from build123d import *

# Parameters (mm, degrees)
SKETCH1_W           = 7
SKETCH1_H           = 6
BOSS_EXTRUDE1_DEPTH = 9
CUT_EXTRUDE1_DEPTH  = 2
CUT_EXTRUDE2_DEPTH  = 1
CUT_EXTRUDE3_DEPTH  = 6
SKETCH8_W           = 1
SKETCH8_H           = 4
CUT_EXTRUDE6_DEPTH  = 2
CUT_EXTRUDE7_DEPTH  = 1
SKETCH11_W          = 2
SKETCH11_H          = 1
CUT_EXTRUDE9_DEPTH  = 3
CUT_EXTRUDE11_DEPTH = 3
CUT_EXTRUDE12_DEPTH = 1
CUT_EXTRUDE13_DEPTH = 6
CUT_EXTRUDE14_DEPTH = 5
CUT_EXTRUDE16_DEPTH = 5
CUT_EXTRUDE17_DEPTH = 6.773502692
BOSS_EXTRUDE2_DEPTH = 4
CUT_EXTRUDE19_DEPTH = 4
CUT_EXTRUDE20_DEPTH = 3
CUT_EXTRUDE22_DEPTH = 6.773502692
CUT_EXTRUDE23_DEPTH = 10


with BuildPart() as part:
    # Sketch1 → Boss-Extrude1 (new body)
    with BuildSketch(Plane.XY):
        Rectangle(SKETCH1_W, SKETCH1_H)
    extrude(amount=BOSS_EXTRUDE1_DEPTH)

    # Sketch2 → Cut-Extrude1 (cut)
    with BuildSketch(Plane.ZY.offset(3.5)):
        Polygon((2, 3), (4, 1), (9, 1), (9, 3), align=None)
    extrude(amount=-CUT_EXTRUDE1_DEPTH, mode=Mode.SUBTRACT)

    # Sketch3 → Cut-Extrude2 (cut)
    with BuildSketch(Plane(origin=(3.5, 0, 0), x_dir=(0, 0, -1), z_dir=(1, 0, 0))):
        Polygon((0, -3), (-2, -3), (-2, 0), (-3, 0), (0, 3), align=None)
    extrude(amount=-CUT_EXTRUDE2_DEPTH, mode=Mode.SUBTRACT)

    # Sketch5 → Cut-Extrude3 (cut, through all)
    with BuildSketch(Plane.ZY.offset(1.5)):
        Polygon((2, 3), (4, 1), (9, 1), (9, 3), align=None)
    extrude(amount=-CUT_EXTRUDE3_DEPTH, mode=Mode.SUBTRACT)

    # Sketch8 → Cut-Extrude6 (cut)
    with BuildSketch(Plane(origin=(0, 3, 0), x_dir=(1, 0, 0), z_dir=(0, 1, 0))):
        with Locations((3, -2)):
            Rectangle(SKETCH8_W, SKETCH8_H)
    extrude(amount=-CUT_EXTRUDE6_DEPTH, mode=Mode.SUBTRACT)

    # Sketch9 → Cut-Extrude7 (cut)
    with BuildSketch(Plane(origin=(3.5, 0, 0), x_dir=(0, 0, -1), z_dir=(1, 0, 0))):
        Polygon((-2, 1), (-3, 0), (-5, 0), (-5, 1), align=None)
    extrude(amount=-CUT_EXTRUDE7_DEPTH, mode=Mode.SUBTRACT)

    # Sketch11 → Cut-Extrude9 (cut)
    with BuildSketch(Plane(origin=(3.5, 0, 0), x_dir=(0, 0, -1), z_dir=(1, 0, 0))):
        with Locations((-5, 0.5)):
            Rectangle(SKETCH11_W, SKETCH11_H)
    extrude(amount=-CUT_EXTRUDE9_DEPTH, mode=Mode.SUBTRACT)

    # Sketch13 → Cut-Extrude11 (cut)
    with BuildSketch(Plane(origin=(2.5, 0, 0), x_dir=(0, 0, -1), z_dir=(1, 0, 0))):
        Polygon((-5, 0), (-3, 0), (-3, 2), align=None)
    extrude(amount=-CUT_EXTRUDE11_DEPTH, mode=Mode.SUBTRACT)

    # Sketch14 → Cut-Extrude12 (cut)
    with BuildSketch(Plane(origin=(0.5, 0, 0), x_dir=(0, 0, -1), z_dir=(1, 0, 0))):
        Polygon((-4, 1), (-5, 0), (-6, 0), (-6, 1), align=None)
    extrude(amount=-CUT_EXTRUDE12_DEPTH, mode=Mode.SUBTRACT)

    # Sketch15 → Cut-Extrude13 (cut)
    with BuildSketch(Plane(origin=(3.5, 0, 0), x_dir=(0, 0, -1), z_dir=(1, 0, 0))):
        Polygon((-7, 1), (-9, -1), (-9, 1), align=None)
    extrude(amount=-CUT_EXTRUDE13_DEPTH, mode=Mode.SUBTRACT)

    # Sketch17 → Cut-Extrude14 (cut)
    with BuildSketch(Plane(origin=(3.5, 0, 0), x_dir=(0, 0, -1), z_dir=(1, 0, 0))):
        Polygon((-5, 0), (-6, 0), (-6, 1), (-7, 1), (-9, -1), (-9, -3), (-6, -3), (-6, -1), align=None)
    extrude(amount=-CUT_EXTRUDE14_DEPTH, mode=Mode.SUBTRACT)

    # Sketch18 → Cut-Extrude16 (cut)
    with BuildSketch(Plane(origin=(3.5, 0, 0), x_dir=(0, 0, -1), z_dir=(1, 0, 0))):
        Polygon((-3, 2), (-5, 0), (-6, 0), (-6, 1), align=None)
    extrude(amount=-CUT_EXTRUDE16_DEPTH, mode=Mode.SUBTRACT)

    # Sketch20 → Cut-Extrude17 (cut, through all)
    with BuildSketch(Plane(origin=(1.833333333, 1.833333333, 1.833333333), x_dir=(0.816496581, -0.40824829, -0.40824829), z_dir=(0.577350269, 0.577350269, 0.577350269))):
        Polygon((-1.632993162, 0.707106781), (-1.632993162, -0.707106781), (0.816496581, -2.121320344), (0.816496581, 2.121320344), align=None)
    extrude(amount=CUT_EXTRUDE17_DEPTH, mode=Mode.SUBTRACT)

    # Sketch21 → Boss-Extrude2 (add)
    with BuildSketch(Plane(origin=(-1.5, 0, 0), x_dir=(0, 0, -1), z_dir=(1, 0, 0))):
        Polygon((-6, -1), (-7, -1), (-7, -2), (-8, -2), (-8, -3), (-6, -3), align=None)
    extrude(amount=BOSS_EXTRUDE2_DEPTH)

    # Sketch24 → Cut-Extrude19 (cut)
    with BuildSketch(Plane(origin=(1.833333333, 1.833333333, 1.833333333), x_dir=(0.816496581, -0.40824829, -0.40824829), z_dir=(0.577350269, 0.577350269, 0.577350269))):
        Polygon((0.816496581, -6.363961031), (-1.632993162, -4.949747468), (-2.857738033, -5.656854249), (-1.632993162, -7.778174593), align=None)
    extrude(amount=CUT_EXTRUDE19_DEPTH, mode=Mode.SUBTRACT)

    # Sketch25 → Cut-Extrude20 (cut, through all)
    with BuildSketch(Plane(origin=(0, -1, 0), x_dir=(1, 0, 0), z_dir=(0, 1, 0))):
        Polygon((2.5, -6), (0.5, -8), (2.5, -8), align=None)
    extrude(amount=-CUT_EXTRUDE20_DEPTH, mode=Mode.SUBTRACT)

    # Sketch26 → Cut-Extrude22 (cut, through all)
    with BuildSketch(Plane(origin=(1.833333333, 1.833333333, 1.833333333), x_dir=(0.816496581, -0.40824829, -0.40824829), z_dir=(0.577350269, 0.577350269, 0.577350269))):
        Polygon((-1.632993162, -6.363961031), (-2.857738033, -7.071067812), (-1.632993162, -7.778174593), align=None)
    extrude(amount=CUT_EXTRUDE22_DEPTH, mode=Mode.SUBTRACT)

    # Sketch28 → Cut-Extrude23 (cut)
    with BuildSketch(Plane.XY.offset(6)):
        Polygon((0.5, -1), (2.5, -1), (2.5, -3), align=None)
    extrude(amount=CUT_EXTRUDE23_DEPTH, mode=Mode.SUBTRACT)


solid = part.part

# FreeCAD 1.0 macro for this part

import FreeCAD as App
import Part
import Sketcher
Q = App.Units.Quantity


def add_polygon(sketch, points):
    """Adds a closed chain of lines whose ends are joined by coincident constraints."""
    first, n = sketch.GeometryCount, len(points)
    for a, b in zip(points, points[1:] + points[:1]):
        sketch.addGeometry(Part.LineSegment(App.Vector(*a, 0), App.Vector(*b, 0)), False)
    for i in range(n):
        sketch.addConstraint(Sketcher.Constraint("Coincident", first + i, 2, first + (i + 1) % n, 1))

doc = App.newDocument("Part")
params = doc.addObject("Spreadsheet::Sheet", "Params")
for row, (alias, value) in enumerate([
    ("sketch1_width", "7 mm"),
    ("sketch1_height", "6 mm"),
    ("pad1_length", "9 mm"),
    ("sketch2_width", "2 mm"),
    ("sketch2_height", "5 mm"),
    ("sketch2_height2", "7 mm"),
    ("pocket1_length", "2 mm"),
    ("sketch3_width", "6 mm"),
    ("sketch3_height", "2 mm"),
    ("sketch3_height2", "1 mm"),
    ("pocket2_length", "1 mm"),
    ("sketch4_width", "2 mm"),
    ("sketch4_height", "5 mm"),
    ("sketch4_height2", "7 mm"),
    ("sketch5_width", "1 mm"),
    ("sketch5_height", "4 mm"),
    ("pocket4_length", "2 mm"),
    ("sketch6_width", "1 mm"),
    ("sketch6_height", "3 mm"),
    ("sketch6_height2", "2 mm"),
    ("pocket5_length", "1 mm"),
    ("sketch7_width", "1 mm"),
    ("sketch7_height", "2 mm"),
    ("pocket6_length", "3 mm"),
    ("sketch8_width", "2 mm"),
    ("pocket7_length", "3 mm"),
    ("sketch9_width", "1 mm"),
    ("sketch9_height", "2 mm"),
    ("pocket8_length", "1 mm"),
    ("sketch10_width", "2 mm"),
    ("pocket9_length", "6 mm"),
    ("sketch11_width", "1 mm"),
    ("sketch11_width2", "2 mm"),
    ("pocket10_length", "5 mm"),
    ("sketch12_width", "1 mm"),
    ("pocket11_length", "5 mm"),
    ("sketch14_width", "1 mm"),
    ("pad2_length", "4 mm"),
    ("pocket13_length", "4 mm"),
    ("sketch16_width", "2 mm"),
    ("sketch18_width", "2 mm"),
    ("pocket16_length", "10 mm"),
], start=1):
    params.set(f"A{row}", alias)
    params.set(f"B{row}", "=" + value)
    params.setAlias(f"B{row}", alias)

body = doc.addObject("PartDesign::Body", "Body")
body.AllowCompound = True

# Sketch on XY plane
sketch1 = body.newObject("Sketcher::SketchObject", "Sketch")
sketch1.AttachmentSupport = (doc.getObject("XY_Plane"), [""])
sketch1.MapMode = "FlatFace"
add_polygon(sketch1, [(-3.5, 3), (-3.5, -3), (3.5, -3), (3.5, 3)])  # lines 0-3
sketch1.addConstraint(Sketcher.Constraint("Vertical", 0))
sketch1.addConstraint(Sketcher.Constraint("Horizontal", 1))
sketch1.addConstraint(Sketcher.Constraint("Vertical", 2))
sketch1.addConstraint(Sketcher.Constraint("Horizontal", 3))
sketch1.addConstraint(Sketcher.Constraint("Symmetric", 0, 2, 2, 2, -1, 1))
sketch1.addConstraint(Sketcher.Constraint("DistanceX", 1, 1, 1, 2, Q("7 mm")))
sketch1.addConstraint(Sketcher.Constraint("DistanceY", 0, 2, 0, 1, Q("6 mm")))
sketch1.setExpression("Constraints[9]", "Params.sketch1_width")
sketch1.setExpression("Constraints[10]", "Params.sketch1_height")
pad1 = body.newObject("PartDesign::Pad", "Pad")
pad1.Profile = sketch1
pad1.setExpression("Length", "Params.pad1_length")

# Sketch on YZ plane
sketch2 = body.newObject("Sketcher::SketchObject", "Sketch001")
sketch2.AttachmentSupport = (doc.getObject("YZ_Plane"), [""])
sketch2.MapMode = "FlatFace"
sketch2.AttachmentOffset = App.Placement(App.Vector(0, 0, -3.5), App.Rotation())
add_polygon(sketch2, [(3, 2), (1, 4), (1, 9), (3, 9)])  # lines 0-3
sketch2.addConstraint(Sketcher.Constraint("Vertical", 1))
sketch2.addConstraint(Sketcher.Constraint("Horizontal", 2))
sketch2.addConstraint(Sketcher.Constraint("Vertical", 3))
sketch2.addConstraint(Sketcher.Constraint("DistanceX", 2, 1, 2, 2, Q("2 mm")))
sketch2.addConstraint(Sketcher.Constraint("DistanceY", 1, 1, 1, 2, Q("5 mm")))
sketch2.addConstraint(Sketcher.Constraint("DistanceY", 3, 2, 3, 1, Q("7 mm")))
sketch2.addConstraint(Sketcher.Constraint("DistanceX", -1, 1, 0, 2, Q("1 mm")))
sketch2.addConstraint(Sketcher.Constraint("DistanceY", -1, 1, 0, 2, Q("4 mm")))
sketch2.setExpression("Constraints[7]", "Params.sketch2_width")
sketch2.setExpression("Constraints[8]", "Params.sketch2_height")
sketch2.setExpression("Constraints[9]", "Params.sketch2_height2")
pocket1 = body.newObject("PartDesign::Pocket", "Pocket")
pocket1.Profile = sketch2
pocket1.setExpression("Length", "Params.pocket1_length")
pocket1.Reversed = True

# Sketch on YZ plane
sketch3 = body.newObject("Sketcher::SketchObject", "Sketch002")
sketch3.AttachmentSupport = (doc.getObject("YZ_Plane"), [""])
sketch3.MapMode = "FlatFace"
sketch3.AttachmentOffset = App.Placement(App.Vector(0, 0, 3.5), App.Rotation())
add_polygon(sketch3, [(-3, 2), (-3, 0), (3, 0), (0, 3), (0, 2)])  # lines 0-4
sketch3.addConstraint(Sketcher.Constraint("Vertical", 0))
sketch3.addConstraint(Sketcher.Constraint("Horizontal", 1))
sketch3.addConstraint(Sketcher.Constraint("Vertical", 3))
sketch3.addConstraint(Sketcher.Constraint("Horizontal", 4))
sketch3.addConstraint(Sketcher.Constraint("Symmetric", 0, 2, 1, 2, -1, 1))
sketch3.addConstraint(Sketcher.Constraint("PointOnObject", 2, 2, -2))
sketch3.addConstraint(Sketcher.Constraint("DistanceX", 1, 1, 1, 2, Q("6 mm")))
sketch3.addConstraint(Sketcher.Constraint("DistanceY", 0, 2, 0, 1, Q("2 mm")))
sketch3.addConstraint(Sketcher.Constraint("DistanceY", 3, 2, 3, 1, Q("1 mm")))
sketch3.setExpression("Constraints[11]", "Params.sketch3_width")
sketch3.setExpression("Constraints[12]", "Params.sketch3_height")
sketch3.setExpression("Constraints[13]", "Params.sketch3_height2")
pocket2 = body.newObject("PartDesign::Pocket", "Pocket001")
pocket2.Profile = sketch3
pocket2.setExpression("Length", "Params.pocket2_length")

# Sketch on YZ plane
sketch4 = body.newObject("Sketcher::SketchObject", "Sketch003")
sketch4.AttachmentSupport = (doc.getObject("YZ_Plane"), [""])
sketch4.MapMode = "FlatFace"
sketch4.AttachmentOffset = App.Placement(App.Vector(0, 0, -1.5), App.Rotation())
add_polygon(sketch4, [(3, 2), (1, 4), (1, 9), (3, 9)])  # lines 0-3
sketch4.addConstraint(Sketcher.Constraint("Vertical", 1))
sketch4.addConstraint(Sketcher.Constraint("Horizontal", 2))
sketch4.addConstraint(Sketcher.Constraint("Vertical", 3))
sketch4.addConstraint(Sketcher.Constraint("DistanceX", 2, 1, 2, 2, Q("2 mm")))
sketch4.addConstraint(Sketcher.Constraint("DistanceY", 1, 1, 1, 2, Q("5 mm")))
sketch4.addConstraint(Sketcher.Constraint("DistanceY", 3, 2, 3, 1, Q("7 mm")))
sketch4.addConstraint(Sketcher.Constraint("DistanceX", -1, 1, 0, 2, Q("1 mm")))
sketch4.addConstraint(Sketcher.Constraint("DistanceY", -1, 1, 0, 2, Q("4 mm")))
sketch4.setExpression("Constraints[7]", "Params.sketch4_width")
sketch4.setExpression("Constraints[8]", "Params.sketch4_height")
sketch4.setExpression("Constraints[9]", "Params.sketch4_height2")
pocket3 = body.newObject("PartDesign::Pocket", "Pocket002")
pocket3.Profile = sketch4
pocket3.Type = "ThroughAll"
pocket3.Reversed = True

# Sketch on XZ plane
sketch5 = body.newObject("Sketcher::SketchObject", "Sketch004")
sketch5.AttachmentSupport = (doc.getObject("XZ_Plane"), [""])
sketch5.MapMode = "FlatFace"
sketch5.AttachmentOffset = App.Placement(App.Vector(0, 0, -3), App.Rotation())
add_polygon(sketch5, [(2.5, 0), (2.5, 4), (3.5, 4), (3.5, 0)])  # lines 0-3
sketch5.addConstraint(Sketcher.Constraint("Vertical", 0))
sketch5.addConstraint(Sketcher.Constraint("Horizontal", 1))
sketch5.addConstraint(Sketcher.Constraint("Vertical", 2))
sketch5.addConstraint(Sketcher.Constraint("Horizontal", 3))
sketch5.addConstraint(Sketcher.Constraint("PointOnObject", 2, 2, -1))
sketch5.addConstraint(Sketcher.Constraint("DistanceX", 1, 1, 1, 2, Q("1 mm")))
sketch5.addConstraint(Sketcher.Constraint("DistanceY", 0, 1, 0, 2, Q("4 mm")))
sketch5.addConstraint(Sketcher.Constraint("DistanceX", -1, 1, 0, 2, Q("2.5 mm")))
sketch5.setExpression("Constraints[9]", "Params.sketch5_width")
sketch5.setExpression("Constraints[10]", "Params.sketch5_height")
pocket4 = body.newObject("PartDesign::Pocket", "Pocket003")
pocket4.Profile = sketch5
pocket4.setExpression("Length", "Params.pocket4_length")
pocket4.Reversed = True

# Sketch on YZ plane
sketch6 = body.newObject("Sketcher::SketchObject", "Sketch005")
sketch6.AttachmentSupport = (doc.getObject("YZ_Plane"), [""])
sketch6.MapMode = "FlatFace"
sketch6.AttachmentOffset = App.Placement(App.Vector(0, 0, 3.5), App.Rotation())
add_polygon(sketch6, [(0, 3), (1, 2), (1, 5), (0, 5)])  # lines 0-3
sketch6.addConstraint(Sketcher.Constraint("Vertical", 1))
sketch6.addConstraint(Sketcher.Constraint("Horizontal", 2))
sketch6.addConstraint(Sketcher.Constraint("Vertical", 3))
sketch6.addConstraint(Sketcher.Constraint("PointOnObject", 2, 2, -2))
sketch6.addConstraint(Sketcher.Constraint("DistanceX", 2, 2, 2, 1, Q("1 mm")))
sketch6.addConstraint(Sketcher.Constraint("DistanceY", 1, 1, 1, 2, Q("3 mm")))
sketch6.addConstraint(Sketcher.Constraint("DistanceY", 3, 2, 3, 1, Q("2 mm")))
sketch6.addConstraint(Sketcher.Constraint("DistanceY", -1, 1, 0, 2, Q("2 mm")))
sketch6.setExpression("Constraints[8]", "Params.sketch6_width")
sketch6.setExpression("Constraints[9]", "Params.sketch6_height")
sketch6.setExpression("Constraints[10]", "Params.sketch6_height2")
pocket5 = body.newObject("PartDesign::Pocket", "Pocket004")
pocket5.Profile = sketch6
pocket5.setExpression("Length", "Params.pocket5_length")

# Sketch on YZ plane
sketch7 = body.newObject("Sketcher::SketchObject", "Sketch006")
sketch7.AttachmentSupport = (doc.getObject("YZ_Plane"), [""])
sketch7.MapMode = "FlatFace"
sketch7.AttachmentOffset = App.Placement(App.Vector(0, 0, 3.5), App.Rotation())
add_polygon(sketch7, [(1, 6), (0, 6), (0, 4), (1, 4)])  # lines 0-3
sketch7.addConstraint(Sketcher.Constraint("Horizontal", 0))
sketch7.addConstraint(Sketcher.Constraint("Vertical", 1))
sketch7.addConstraint(Sketcher.Constraint("Horizontal", 2))
sketch7.addConstraint(Sketcher.Constraint("Vertical", 3))
sketch7.addConstraint(Sketcher.Constraint("PointOnObject", 0, 2, -2))
sketch7.addConstraint(Sketcher.Constraint("DistanceX", 0, 2, 0, 1, Q("1 mm")))
sketch7.addConstraint(Sketcher.Constraint("DistanceY", 1, 2, 1, 1, Q("2 mm")))
sketch7.addConstraint(Sketcher.Constraint("DistanceY", -1, 1, 0, 2, Q("6 mm")))
sketch7.setExpression("Constraints[9]", "Params.sketch7_width")
sketch7.setExpression("Constraints[10]", "Params.sketch7_height")
pocket6 = body.newObject("PartDesign::Pocket", "Pocket005")
pocket6.Profile = sketch7
pocket6.setExpression("Length", "Params.pocket6_length")

# Sketch on YZ plane
sketch8 = body.newObject("Sketcher::SketchObject", "Sketch007")
sketch8.AttachmentSupport = (doc.getObject("YZ_Plane"), [""])
sketch8.MapMode = "FlatFace"
sketch8.AttachmentOffset = App.Placement(App.Vector(0, 0, 2.5), App.Rotation())
add_polygon(sketch8, [(0, 5), (0, 3), (2, 3)])  # lines 0-2
sketch8.addConstraint(Sketcher.Constraint("Vertical", 0))
sketch8.addConstraint(Sketcher.Constraint("Horizontal", 1))
sketch8.addConstraint(Sketcher.Constraint("PointOnObject", 0, 2, -2))
sketch8.addConstraint(Sketcher.Constraint("Equal", 1, 0))
sketch8.addConstraint(Sketcher.Constraint("DistanceX", 1, 1, 1, 2, Q("2 mm")))
sketch8.addConstraint(Sketcher.Constraint("DistanceY", -1, 1, 0, 2, Q("3 mm")))
sketch8.setExpression("Constraints[7]", "Params.sketch8_width")
pocket7 = body.newObject("PartDesign::Pocket", "Pocket006")
pocket7.Profile = sketch8
pocket7.setExpression("Length", "Params.pocket7_length")

# Sketch on YZ plane
sketch9 = body.newObject("Sketcher::SketchObject", "Sketch008")
sketch9.AttachmentSupport = (doc.getObject("YZ_Plane"), [""])
sketch9.MapMode = "FlatFace"
sketch9.AttachmentOffset = App.Placement(App.Vector(0, 0, 0.5), App.Rotation())
add_polygon(sketch9, [(0, 5), (1, 4), (1, 6), (0, 6)])  # lines 0-3
sketch9.addConstraint(Sketcher.Constraint("Vertical", 1))
sketch9.addConstraint(Sketcher.Constraint("Horizontal", 2))
sketch9.addConstraint(Sketcher.Constraint("Vertical", 3))
sketch9.addConstraint(Sketcher.Constraint("PointOnObject", 2, 2, -2))
sketch9.addConstraint(Sketcher.Constraint("Equal", 2, 3))
sketch9.addConstraint(Sketcher.Constraint("DistanceX", 2, 2, 2, 1, Q("1 mm")))
sketch9.addConstraint(Sketcher.Constraint("DistanceY", 1, 1, 1, 2, Q("2 mm")))
sketch9.addConstraint(Sketcher.Constraint("DistanceY", -1, 1, 0, 2, Q("4 mm")))
sketch9.setExpression("Constraints[9]", "Params.sketch9_width")
sketch9.setExpression("Constraints[10]", "Params.sketch9_height")
pocket8 = body.newObject("PartDesign::Pocket", "Pocket007")
pocket8.Profile = sketch9
pocket8.setExpression("Length", "Params.pocket8_length")

# Sketch on YZ plane
sketch10 = body.newObject("Sketcher::SketchObject", "Sketch009")
sketch10.AttachmentSupport = (doc.getObject("YZ_Plane"), [""])
sketch10.MapMode = "FlatFace"
sketch10.AttachmentOffset = App.Placement(App.Vector(0, 0, 3.5), App.Rotation())
add_polygon(sketch10, [(-1, 9), (1, 7), (1, 9)])  # lines 0-2
sketch10.addConstraint(Sketcher.Constraint("Vertical", 1))
sketch10.addConstraint(Sketcher.Constraint("Horizontal", 2))
sketch10.addConstraint(Sketcher.Constraint("Equal", 2, 1))
sketch10.addConstraint(Sketcher.Constraint("DistanceX", 2, 2, 2, 1, Q("2 mm")))
sketch10.addConstraint(Sketcher.Constraint("DistanceX", -1, 1, 0, 2, Q("1 mm")))
sketch10.addConstraint(Sketcher.Constraint("DistanceY", -1, 1, 0, 2, Q("7 mm")))
sketch10.setExpression("Constraints[6]", "Params.sketch10_width")
pocket9 = body.newObject("PartDesign::Pocket", "Pocket008")
pocket9.Profile = sketch10
pocket9.setExpression("Length", "Params.pocket9_length")

# Sketch on YZ plane
sketch11 = body.newObject("Sketcher::SketchObject", "Sketch010")
sketch11.AttachmentSupport = (doc.getObject("YZ_Plane"), [""])
sketch11.MapMode = "FlatFace"
sketch11.AttachmentOffset = App.Placement(App.Vector(0, 0, 3.5), App.Rotation())
add_polygon(sketch11, [(0, 5), (0, 6), (1, 6), (1, 7), (-1, 9), (-3, 9), (-3, 6), (-1, 6)])  # lines 0-7
sketch11.addConstraint(Sketcher.Constraint("Vertical", 0))
sketch11.addConstraint(Sketcher.Constraint("Horizontal", 1))
sketch11.addConstraint(Sketcher.Constraint("Vertical", 2))
sketch11.addConstraint(Sketcher.Constraint("Horizontal", 4))
sketch11.addConstraint(Sketcher.Constraint("Vertical", 5))
sketch11.addConstraint(Sketcher.Constraint("Horizontal", 6))
sketch11.addConstraint(Sketcher.Constraint("Symmetric", 1, 2, 6, 2, -2))
sketch11.addConstraint(Sketcher.Constraint("PointOnObject", 0, 2, -2))
sketch11.addConstraint(Sketcher.Constraint("Parallel", 3, 7))
sketch11.addConstraint(Sketcher.Constraint("Vertical", 3, 2, 6, 2))
sketch11.addConstraint(Sketcher.Constraint("Equal", 1, 0))
sketch11.addConstraint(Sketcher.Constraint("Equal", 0, 2))
sketch11.addConstraint(Sketcher.Constraint("DistanceX", 1, 1, 1, 2, Q("1 mm")))
sketch11.addConstraint(Sketcher.Constraint("DistanceX", 4, 2, 4, 1, Q("2 mm")))
sketch11.addConstraint(Sketcher.Constraint("DistanceY", -1, 1, 0, 2, Q("6 mm")))
sketch11.setExpression("Constraints[20]", "Params.sketch11_width")
sketch11.setExpression("Constraints[21]", "Params.sketch11_width2")
pocket10 = body.newObject("PartDesign::Pocket", "Pocket009")
pocket10.Profile = sketch11
pocket10.setExpression("Length", "Params.pocket10_length")

# Sketch on YZ plane
sketch12 = body.newObject("Sketcher::SketchObject", "Sketch011")
sketch12.AttachmentSupport = (doc.getObject("YZ_Plane"), [""])
sketch12.MapMode = "FlatFace"
sketch12.AttachmentOffset = App.Placement(App.Vector(0, 0, 3.5), App.Rotation())
add_polygon(sketch12, [(0, 5), (2, 3), (1, 6), (0, 6)])  # lines 0-3
sketch12.addConstraint(Sketcher.Constraint("Horizontal", 2))
sketch12.addConstraint(Sketcher.Constraint("Vertical", 3))
sketch12.addConstraint(Sketcher.Constraint("PointOnObject", 2, 2, -2))
sketch12.addConstraint(Sketcher.Constraint("Equal", 2, 3))
sketch12.addConstraint(Sketcher.Constraint("DistanceX", 2, 2, 2, 1, Q("1 mm")))
sketch12.addConstraint(Sketcher.Constraint("Angle", 0, Q("-45 deg")))
sketch12.addConstraint(Sketcher.Constraint("DistanceX", -1, 1, 0, 2, Q("2 mm")))
sketch12.addConstraint(Sketcher.Constraint("DistanceY", -1, 1, 0, 2, Q("3 mm")))
sketch12.setExpression("Constraints[8]", "Params.sketch12_width")
pocket11 = body.newObject("PartDesign::Pocket", "Pocket010")
pocket11.Profile = sketch12
pocket11.setExpression("Length", "Params.pocket11_length")

# Sketch on an angled plane
sketch13 = body.newObject("Sketcher::SketchObject", "Sketch012")
sketch13.Placement = App.Placement(App.Vector(1.833333, 1.833333, 1.833333), App.Rotation(App.Vector(0.816496581, -0.40824829, -0.40824829), App.Vector(0, 0.707106781, -0.707106781), App.Vector(0.577350269, 0.577350269, 0.577350269), "ZXY"))
add_polygon(sketch13, [(-1.632993, 0.707107), (-1.632993, -0.707107), (0.816497, -2.12132), (0.816497, 2.12132)])  # lines 0-3
sketch13.addConstraint(Sketcher.Constraint("Vertical", 0))
sketch13.addConstraint(Sketcher.Constraint("Vertical", 2))
sketch13.addConstraint(Sketcher.Constraint("Equal", 1, 3))
sketch13.addConstraint(Sketcher.Constraint("Angle", 1, Q("-30 deg")))
sketch13.addConstraint(Sketcher.Constraint("DistanceY", 2, 1, 2, 2, Q("4.242641 mm")))
sketch13.addConstraint(Sketcher.Constraint("DistanceY", 0, 2, 0, 1, Q("1.414214 mm")))
sketch13.addConstraint(Sketcher.Constraint("DistanceY", 1, 2, -1, 1, Q("2.12132 mm")))
sketch13.addConstraint(Sketcher.Constraint("DistanceX", 0, 2, -1, 1, Q("1.632993 mm")))
pocket12 = body.newObject("PartDesign::Pocket", "Pocket011")
pocket12.Profile = sketch13
pocket12.Type = "ThroughAll"
pocket12.Reversed = True

# Sketch on YZ plane
sketch14 = body.newObject("Sketcher::SketchObject", "Sketch013")
sketch14.AttachmentSupport = (doc.getObject("YZ_Plane"), [""])
sketch14.MapMode = "FlatFace"
sketch14.AttachmentOffset = App.Placement(App.Vector(0, 0, -1.5), App.Rotation())
add_polygon(sketch14, [(-1, 6), (-1, 7), (-2, 7), (-2, 8), (-3, 8), (-3, 6)])  # lines 0-5
sketch14.addConstraint(Sketcher.Constraint("Vertical", 0))
sketch14.addConstraint(Sketcher.Constraint("Horizontal", 1))
sketch14.addConstraint(Sketcher.Constraint("Vertical", 2))
sketch14.addConstraint(Sketcher.Constraint("Horizontal", 3))
sketch14.addConstraint(Sketcher.Constraint("Vertical", 4))
sketch14.addConstraint(Sketcher.Constraint("Horizontal", 5))
sketch14.addConstraint(Sketcher.Constraint("Equal", 1, 3))
sketch14.addConstraint(Sketcher.Constraint("Equal", 3, 0))
sketch14.addConstraint(Sketcher.Constraint("Equal", 0, 2))
sketch14.addConstraint(Sketcher.Constraint("DistanceX", 1, 2, 1, 1, Q("1 mm")))
sketch14.addConstraint(Sketcher.Constraint("DistanceX", 0, 2, -1, 1, Q("1 mm")))
sketch14.addConstraint(Sketcher.Constraint("DistanceY", -1, 1, 0, 2, Q("7 mm")))
sketch14.setExpression("Constraints[15]", "Params.sketch14_width")
pad2 = body.newObject("PartDesign::Pad", "Pad001")
pad2.Profile = sketch14
pad2.setExpression("Length", "Params.pad2_length")

# Sketch on an angled plane
sketch15 = body.newObject("Sketcher::SketchObject", "Sketch014")
sketch15.Placement = App.Placement(App.Vector(1.833333, 1.833333, 1.833333), App.Rotation(App.Vector(0.816496581, -0.40824829, -0.40824829), App.Vector(0, 0.707106781, -0.707106781), App.Vector(0.577350269, 0.577350269, 0.577350269), "ZXY"))
add_polygon(sketch15, [(0.816497, -6.363961), (-1.632993, -4.949747), (-2.857738, -5.656854), (-1.632993, -7.778175)])  # lines 0-3
sketch15.addConstraint(Sketcher.Constraint("Perpendicular", 1, 2))
sketch15.addConstraint(Sketcher.Constraint("Perpendicular", 2, 3))
sketch15.addConstraint(Sketcher.Constraint("Vertical", 0, 2, 2, 2))
sketch15.addConstraint(Sketcher.Constraint("Equal", 0, 3))
sketch15.addConstraint(Sketcher.Constraint("Angle", 0, Q("150 deg")))
sketch15.addConstraint(Sketcher.Constraint("Distance", 2, Q("2.44949 mm")))
sketch15.addConstraint(Sketcher.Constraint("DistanceX", 1, 2, -1, 1, Q("2.857738 mm")))
sketch15.addConstraint(Sketcher.Constraint("DistanceY", 3, 2, -1, 1, Q("6.363961 mm")))
pocket13 = body.newObject("PartDesign::Pocket", "Pocket012")
pocket13.Profile = sketch15
pocket13.setExpression("Length", "Params.pocket13_length")
pocket13.Reversed = True

# Sketch on XZ plane
sketch16 = body.newObject("Sketcher::SketchObject", "Sketch015")
sketch16.AttachmentSupport = (doc.getObject("XZ_Plane"), [""])
sketch16.MapMode = "FlatFace"
sketch16.AttachmentOffset = App.Placement(App.Vector(0, 0, 1), App.Rotation())
add_polygon(sketch16, [(2.5, 6), (0.5, 8), (2.5, 8)])  # lines 0-2
sketch16.addConstraint(Sketcher.Constraint("Horizontal", 1))
sketch16.addConstraint(Sketcher.Constraint("Vertical", 2))
sketch16.addConstraint(Sketcher.Constraint("Equal", 1, 2))
sketch16.addConstraint(Sketcher.Constraint("DistanceX", 1, 1, 1, 2, Q("2 mm")))
sketch16.addConstraint(Sketcher.Constraint("DistanceY", -1, 1, 0, 2, Q("8 mm")))
sketch16.addConstraint(Sketcher.Constraint("DistanceX", -1, 1, 0, 2, Q("0.5 mm")))
sketch16.setExpression("Constraints[6]", "Params.sketch16_width")
pocket14 = body.newObject("PartDesign::Pocket", "Pocket013")
pocket14.Profile = sketch16
pocket14.Type = "ThroughAll"
pocket14.Reversed = True

# Sketch on an angled plane
sketch17 = body.newObject("Sketcher::SketchObject", "Sketch016")
sketch17.Placement = App.Placement(App.Vector(1.833333, 1.833333, 1.833333), App.Rotation(App.Vector(0.816496581, -0.40824829, -0.40824829), App.Vector(0, 0.707106781, -0.707106781), App.Vector(0.577350269, 0.577350269, 0.577350269), "ZXY"))
add_polygon(sketch17, [(-1.632993, -6.363961), (-2.857738, -7.071068), (-1.632993, -7.778175)])  # lines 0-2
sketch17.addConstraint(Sketcher.Constraint("Vertical", 2))
sketch17.addConstraint(Sketcher.Constraint("Equal", 0, 1))
sketch17.addConstraint(Sketcher.Constraint("Angle", 0, Q("-150 deg")))
sketch17.addConstraint(Sketcher.Constraint("DistanceY", 2, 1, 2, 2, Q("1.414214 mm")))
sketch17.addConstraint(Sketcher.Constraint("DistanceX", 0, 2, -1, 1, Q("2.857738 mm")))
sketch17.addConstraint(Sketcher.Constraint("DistanceY", 2, 2, -1, 1, Q("6.363961 mm")))
pocket15 = body.newObject("PartDesign::Pocket", "Pocket014")
pocket15.Profile = sketch17
pocket15.Type = "ThroughAll"
pocket15.Reversed = True

# Sketch on XY plane
sketch18 = body.newObject("Sketcher::SketchObject", "Sketch017")
sketch18.AttachmentSupport = (doc.getObject("XY_Plane"), [""])
sketch18.MapMode = "FlatFace"
sketch18.AttachmentOffset = App.Placement(App.Vector(0, 0, 6), App.Rotation())
add_polygon(sketch18, [(2.5, -1), (0.5, -1), (2.5, -3)])  # lines 0-2
sketch18.addConstraint(Sketcher.Constraint("Horizontal", 0))
sketch18.addConstraint(Sketcher.Constraint("Vertical", 2))
sketch18.addConstraint(Sketcher.Constraint("Equal", 0, 2))
sketch18.addConstraint(Sketcher.Constraint("DistanceX", 0, 2, 0, 1, Q("2 mm")))
sketch18.addConstraint(Sketcher.Constraint("DistanceY", 0, 2, -1, 1, Q("1 mm")))
sketch18.addConstraint(Sketcher.Constraint("DistanceX", -1, 1, 0, 2, Q("0.5 mm")))
sketch18.setExpression("Constraints[6]", "Params.sketch18_width")
pocket16 = body.newObject("PartDesign::Pocket", "Pocket015")
pocket16.Profile = sketch18
pocket16.setExpression("Length", "Params.pocket16_length")
pocket16.Reversed = True

doc.recompute()
